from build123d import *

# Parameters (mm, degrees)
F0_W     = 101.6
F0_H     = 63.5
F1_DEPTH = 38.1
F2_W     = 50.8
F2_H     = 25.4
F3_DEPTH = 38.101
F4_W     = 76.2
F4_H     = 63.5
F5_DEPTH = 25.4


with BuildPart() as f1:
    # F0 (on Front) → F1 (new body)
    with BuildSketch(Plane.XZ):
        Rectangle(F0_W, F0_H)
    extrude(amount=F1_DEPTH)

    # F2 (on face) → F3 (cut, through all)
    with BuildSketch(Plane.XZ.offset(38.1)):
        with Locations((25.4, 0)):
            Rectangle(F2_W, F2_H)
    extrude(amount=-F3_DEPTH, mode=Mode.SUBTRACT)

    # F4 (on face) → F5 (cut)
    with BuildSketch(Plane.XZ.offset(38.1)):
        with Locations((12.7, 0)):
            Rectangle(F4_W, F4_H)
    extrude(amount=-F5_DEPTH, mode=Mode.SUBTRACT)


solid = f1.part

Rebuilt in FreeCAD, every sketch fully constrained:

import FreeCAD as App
import Part
import Sketcher

V = App.Vector
Q = App.Units.Quantity


def add_polygon(sketch, points):
    """Adds a closed chain of lines whose ends are joined by coincident constraints."""
    first, n = sketch.GeometryCount, len(points)
    for a, b in zip(points, points[1:] + points[:1]):
        sketch.addGeometry(Part.LineSegment(App.Vector(*a, 0), App.Vector(*b, 0)), False)
    for i in range(n):
        sketch.addConstraint(Sketcher.Constraint("Coincident", first + i, 2, first + (i + 1) % n, 1))

doc = App.newDocument("Part")
body = doc.addObject("PartDesign::Body", "Body")

sketch1 = body.newObject("Sketcher::SketchObject", "Sketch")
sketch1.AttachmentSupport = (doc.getObject("XZ_Plane"), [""])
sketch1.MapMode = "FlatFace"
add_polygon(sketch1, [(-51, 32), (-51, -32), (51, -32), (51, 32)])
sketch1.addConstraint(Sketcher.Constraint("Vertical", 0))
sketch1.addConstraint(Sketcher.Constraint("Horizontal", 1))
sketch1.addConstraint(Sketcher.Constraint("Vertical", 2))
sketch1.addConstraint(Sketcher.Constraint("Horizontal", 3))
sketch1.addConstraint(Sketcher.Constraint("Symmetric", 0, 2, 2, 2, -1, 1))
sketch1.addConstraint(Sketcher.Constraint("DistanceX", 1, 1, 1, 2, Q("4 in")))
sketch1.addConstraint(Sketcher.Constraint("DistanceY", 0, 2, 0, 1, Q("2.5 in")))
pad1 = body.newObject("PartDesign::Pad", "Pad")
pad1.Profile = sketch1
pad1.Length = Q("1.5 in")

sketch2 = body.newObject("Sketcher::SketchObject", "Sketch001")
sketch2.AttachmentSupport = (doc.getObject("XZ_Plane"), [""])
sketch2.MapMode = "FlatFace"
sketch2.AttachmentOffset = App.Placement(V(0, 0, 1.5 * 25.4), App.Rotation())
add_polygon(sketch2, [(0, 13), (0, -13), (51, -13), (51, 13)])
sketch2.addConstraint(Sketcher.Constraint("Vertical", 0))
sketch2.addConstraint(Sketcher.Constraint("Horizontal", 1))
sketch2.addConstraint(Sketcher.Constraint("Vertical", 2))
sketch2.addConstraint(Sketcher.Constraint("Horizontal", 3))
sketch2.addConstraint(Sketcher.Constraint("Symmetric", 0, 2, 3, 2, -1, 1))
sketch2.addConstraint(Sketcher.Constraint("DistanceX", 1, 1, 1, 2, Q("2 in")))
sketch2.addConstraint(Sketcher.Constraint("DistanceY", 0, 2, 0, 1, Q("1 in")))
pocket1 = body.newObject("PartDesign::Pocket", "Pocket")
pocket1.Profile = sketch2
pocket1.Type = "ThroughAll"

sketch3 = body.newObject("Sketcher::SketchObject", "Sketch002")
sketch3.AttachmentSupport = (doc.getObject("XZ_Plane"), [""])
sketch3.MapMode = "FlatFace"
sketch3.AttachmentOffset = App.Placement(V(0, 0, 1.5 * 25.4), App.Rotation())
add_polygon(sketch3, [(-25, 32), (-25, -32), (51, -32), (51, 32)])
sketch3.addConstraint(Sketcher.Constraint("Vertical", 0))
sketch3.addConstraint(Sketcher.Constraint("Horizontal", 1))
sketch3.addConstraint(Sketcher.Constraint("Vertical", 2))
sketch3.addConstraint(Sketcher.Constraint("Horizontal", 3))
sketch3.addConstraint(Sketcher.Constraint("DistanceX", 1, 1, 1, 2, Q("3 in")))
sketch3.addConstraint(Sketcher.Constraint("DistanceY", 0, 2, 0, 1, Q("2.5 in")))
sketch3.addConstraint(Sketcher.Constraint("DistanceX", 0, 2, -1, 1, Q("1 in")))
sketch3.addConstraint(Sketcher.Constraint("DistanceY", 0, 2, -1, 1, Q("1.25 in")))
pocket2 = body.newObject("PartDesign::Pocket", "Pocket001")
pocket2.Profile = sketch3
pocket2.Length = Q("1 in")

doc.recompute()
